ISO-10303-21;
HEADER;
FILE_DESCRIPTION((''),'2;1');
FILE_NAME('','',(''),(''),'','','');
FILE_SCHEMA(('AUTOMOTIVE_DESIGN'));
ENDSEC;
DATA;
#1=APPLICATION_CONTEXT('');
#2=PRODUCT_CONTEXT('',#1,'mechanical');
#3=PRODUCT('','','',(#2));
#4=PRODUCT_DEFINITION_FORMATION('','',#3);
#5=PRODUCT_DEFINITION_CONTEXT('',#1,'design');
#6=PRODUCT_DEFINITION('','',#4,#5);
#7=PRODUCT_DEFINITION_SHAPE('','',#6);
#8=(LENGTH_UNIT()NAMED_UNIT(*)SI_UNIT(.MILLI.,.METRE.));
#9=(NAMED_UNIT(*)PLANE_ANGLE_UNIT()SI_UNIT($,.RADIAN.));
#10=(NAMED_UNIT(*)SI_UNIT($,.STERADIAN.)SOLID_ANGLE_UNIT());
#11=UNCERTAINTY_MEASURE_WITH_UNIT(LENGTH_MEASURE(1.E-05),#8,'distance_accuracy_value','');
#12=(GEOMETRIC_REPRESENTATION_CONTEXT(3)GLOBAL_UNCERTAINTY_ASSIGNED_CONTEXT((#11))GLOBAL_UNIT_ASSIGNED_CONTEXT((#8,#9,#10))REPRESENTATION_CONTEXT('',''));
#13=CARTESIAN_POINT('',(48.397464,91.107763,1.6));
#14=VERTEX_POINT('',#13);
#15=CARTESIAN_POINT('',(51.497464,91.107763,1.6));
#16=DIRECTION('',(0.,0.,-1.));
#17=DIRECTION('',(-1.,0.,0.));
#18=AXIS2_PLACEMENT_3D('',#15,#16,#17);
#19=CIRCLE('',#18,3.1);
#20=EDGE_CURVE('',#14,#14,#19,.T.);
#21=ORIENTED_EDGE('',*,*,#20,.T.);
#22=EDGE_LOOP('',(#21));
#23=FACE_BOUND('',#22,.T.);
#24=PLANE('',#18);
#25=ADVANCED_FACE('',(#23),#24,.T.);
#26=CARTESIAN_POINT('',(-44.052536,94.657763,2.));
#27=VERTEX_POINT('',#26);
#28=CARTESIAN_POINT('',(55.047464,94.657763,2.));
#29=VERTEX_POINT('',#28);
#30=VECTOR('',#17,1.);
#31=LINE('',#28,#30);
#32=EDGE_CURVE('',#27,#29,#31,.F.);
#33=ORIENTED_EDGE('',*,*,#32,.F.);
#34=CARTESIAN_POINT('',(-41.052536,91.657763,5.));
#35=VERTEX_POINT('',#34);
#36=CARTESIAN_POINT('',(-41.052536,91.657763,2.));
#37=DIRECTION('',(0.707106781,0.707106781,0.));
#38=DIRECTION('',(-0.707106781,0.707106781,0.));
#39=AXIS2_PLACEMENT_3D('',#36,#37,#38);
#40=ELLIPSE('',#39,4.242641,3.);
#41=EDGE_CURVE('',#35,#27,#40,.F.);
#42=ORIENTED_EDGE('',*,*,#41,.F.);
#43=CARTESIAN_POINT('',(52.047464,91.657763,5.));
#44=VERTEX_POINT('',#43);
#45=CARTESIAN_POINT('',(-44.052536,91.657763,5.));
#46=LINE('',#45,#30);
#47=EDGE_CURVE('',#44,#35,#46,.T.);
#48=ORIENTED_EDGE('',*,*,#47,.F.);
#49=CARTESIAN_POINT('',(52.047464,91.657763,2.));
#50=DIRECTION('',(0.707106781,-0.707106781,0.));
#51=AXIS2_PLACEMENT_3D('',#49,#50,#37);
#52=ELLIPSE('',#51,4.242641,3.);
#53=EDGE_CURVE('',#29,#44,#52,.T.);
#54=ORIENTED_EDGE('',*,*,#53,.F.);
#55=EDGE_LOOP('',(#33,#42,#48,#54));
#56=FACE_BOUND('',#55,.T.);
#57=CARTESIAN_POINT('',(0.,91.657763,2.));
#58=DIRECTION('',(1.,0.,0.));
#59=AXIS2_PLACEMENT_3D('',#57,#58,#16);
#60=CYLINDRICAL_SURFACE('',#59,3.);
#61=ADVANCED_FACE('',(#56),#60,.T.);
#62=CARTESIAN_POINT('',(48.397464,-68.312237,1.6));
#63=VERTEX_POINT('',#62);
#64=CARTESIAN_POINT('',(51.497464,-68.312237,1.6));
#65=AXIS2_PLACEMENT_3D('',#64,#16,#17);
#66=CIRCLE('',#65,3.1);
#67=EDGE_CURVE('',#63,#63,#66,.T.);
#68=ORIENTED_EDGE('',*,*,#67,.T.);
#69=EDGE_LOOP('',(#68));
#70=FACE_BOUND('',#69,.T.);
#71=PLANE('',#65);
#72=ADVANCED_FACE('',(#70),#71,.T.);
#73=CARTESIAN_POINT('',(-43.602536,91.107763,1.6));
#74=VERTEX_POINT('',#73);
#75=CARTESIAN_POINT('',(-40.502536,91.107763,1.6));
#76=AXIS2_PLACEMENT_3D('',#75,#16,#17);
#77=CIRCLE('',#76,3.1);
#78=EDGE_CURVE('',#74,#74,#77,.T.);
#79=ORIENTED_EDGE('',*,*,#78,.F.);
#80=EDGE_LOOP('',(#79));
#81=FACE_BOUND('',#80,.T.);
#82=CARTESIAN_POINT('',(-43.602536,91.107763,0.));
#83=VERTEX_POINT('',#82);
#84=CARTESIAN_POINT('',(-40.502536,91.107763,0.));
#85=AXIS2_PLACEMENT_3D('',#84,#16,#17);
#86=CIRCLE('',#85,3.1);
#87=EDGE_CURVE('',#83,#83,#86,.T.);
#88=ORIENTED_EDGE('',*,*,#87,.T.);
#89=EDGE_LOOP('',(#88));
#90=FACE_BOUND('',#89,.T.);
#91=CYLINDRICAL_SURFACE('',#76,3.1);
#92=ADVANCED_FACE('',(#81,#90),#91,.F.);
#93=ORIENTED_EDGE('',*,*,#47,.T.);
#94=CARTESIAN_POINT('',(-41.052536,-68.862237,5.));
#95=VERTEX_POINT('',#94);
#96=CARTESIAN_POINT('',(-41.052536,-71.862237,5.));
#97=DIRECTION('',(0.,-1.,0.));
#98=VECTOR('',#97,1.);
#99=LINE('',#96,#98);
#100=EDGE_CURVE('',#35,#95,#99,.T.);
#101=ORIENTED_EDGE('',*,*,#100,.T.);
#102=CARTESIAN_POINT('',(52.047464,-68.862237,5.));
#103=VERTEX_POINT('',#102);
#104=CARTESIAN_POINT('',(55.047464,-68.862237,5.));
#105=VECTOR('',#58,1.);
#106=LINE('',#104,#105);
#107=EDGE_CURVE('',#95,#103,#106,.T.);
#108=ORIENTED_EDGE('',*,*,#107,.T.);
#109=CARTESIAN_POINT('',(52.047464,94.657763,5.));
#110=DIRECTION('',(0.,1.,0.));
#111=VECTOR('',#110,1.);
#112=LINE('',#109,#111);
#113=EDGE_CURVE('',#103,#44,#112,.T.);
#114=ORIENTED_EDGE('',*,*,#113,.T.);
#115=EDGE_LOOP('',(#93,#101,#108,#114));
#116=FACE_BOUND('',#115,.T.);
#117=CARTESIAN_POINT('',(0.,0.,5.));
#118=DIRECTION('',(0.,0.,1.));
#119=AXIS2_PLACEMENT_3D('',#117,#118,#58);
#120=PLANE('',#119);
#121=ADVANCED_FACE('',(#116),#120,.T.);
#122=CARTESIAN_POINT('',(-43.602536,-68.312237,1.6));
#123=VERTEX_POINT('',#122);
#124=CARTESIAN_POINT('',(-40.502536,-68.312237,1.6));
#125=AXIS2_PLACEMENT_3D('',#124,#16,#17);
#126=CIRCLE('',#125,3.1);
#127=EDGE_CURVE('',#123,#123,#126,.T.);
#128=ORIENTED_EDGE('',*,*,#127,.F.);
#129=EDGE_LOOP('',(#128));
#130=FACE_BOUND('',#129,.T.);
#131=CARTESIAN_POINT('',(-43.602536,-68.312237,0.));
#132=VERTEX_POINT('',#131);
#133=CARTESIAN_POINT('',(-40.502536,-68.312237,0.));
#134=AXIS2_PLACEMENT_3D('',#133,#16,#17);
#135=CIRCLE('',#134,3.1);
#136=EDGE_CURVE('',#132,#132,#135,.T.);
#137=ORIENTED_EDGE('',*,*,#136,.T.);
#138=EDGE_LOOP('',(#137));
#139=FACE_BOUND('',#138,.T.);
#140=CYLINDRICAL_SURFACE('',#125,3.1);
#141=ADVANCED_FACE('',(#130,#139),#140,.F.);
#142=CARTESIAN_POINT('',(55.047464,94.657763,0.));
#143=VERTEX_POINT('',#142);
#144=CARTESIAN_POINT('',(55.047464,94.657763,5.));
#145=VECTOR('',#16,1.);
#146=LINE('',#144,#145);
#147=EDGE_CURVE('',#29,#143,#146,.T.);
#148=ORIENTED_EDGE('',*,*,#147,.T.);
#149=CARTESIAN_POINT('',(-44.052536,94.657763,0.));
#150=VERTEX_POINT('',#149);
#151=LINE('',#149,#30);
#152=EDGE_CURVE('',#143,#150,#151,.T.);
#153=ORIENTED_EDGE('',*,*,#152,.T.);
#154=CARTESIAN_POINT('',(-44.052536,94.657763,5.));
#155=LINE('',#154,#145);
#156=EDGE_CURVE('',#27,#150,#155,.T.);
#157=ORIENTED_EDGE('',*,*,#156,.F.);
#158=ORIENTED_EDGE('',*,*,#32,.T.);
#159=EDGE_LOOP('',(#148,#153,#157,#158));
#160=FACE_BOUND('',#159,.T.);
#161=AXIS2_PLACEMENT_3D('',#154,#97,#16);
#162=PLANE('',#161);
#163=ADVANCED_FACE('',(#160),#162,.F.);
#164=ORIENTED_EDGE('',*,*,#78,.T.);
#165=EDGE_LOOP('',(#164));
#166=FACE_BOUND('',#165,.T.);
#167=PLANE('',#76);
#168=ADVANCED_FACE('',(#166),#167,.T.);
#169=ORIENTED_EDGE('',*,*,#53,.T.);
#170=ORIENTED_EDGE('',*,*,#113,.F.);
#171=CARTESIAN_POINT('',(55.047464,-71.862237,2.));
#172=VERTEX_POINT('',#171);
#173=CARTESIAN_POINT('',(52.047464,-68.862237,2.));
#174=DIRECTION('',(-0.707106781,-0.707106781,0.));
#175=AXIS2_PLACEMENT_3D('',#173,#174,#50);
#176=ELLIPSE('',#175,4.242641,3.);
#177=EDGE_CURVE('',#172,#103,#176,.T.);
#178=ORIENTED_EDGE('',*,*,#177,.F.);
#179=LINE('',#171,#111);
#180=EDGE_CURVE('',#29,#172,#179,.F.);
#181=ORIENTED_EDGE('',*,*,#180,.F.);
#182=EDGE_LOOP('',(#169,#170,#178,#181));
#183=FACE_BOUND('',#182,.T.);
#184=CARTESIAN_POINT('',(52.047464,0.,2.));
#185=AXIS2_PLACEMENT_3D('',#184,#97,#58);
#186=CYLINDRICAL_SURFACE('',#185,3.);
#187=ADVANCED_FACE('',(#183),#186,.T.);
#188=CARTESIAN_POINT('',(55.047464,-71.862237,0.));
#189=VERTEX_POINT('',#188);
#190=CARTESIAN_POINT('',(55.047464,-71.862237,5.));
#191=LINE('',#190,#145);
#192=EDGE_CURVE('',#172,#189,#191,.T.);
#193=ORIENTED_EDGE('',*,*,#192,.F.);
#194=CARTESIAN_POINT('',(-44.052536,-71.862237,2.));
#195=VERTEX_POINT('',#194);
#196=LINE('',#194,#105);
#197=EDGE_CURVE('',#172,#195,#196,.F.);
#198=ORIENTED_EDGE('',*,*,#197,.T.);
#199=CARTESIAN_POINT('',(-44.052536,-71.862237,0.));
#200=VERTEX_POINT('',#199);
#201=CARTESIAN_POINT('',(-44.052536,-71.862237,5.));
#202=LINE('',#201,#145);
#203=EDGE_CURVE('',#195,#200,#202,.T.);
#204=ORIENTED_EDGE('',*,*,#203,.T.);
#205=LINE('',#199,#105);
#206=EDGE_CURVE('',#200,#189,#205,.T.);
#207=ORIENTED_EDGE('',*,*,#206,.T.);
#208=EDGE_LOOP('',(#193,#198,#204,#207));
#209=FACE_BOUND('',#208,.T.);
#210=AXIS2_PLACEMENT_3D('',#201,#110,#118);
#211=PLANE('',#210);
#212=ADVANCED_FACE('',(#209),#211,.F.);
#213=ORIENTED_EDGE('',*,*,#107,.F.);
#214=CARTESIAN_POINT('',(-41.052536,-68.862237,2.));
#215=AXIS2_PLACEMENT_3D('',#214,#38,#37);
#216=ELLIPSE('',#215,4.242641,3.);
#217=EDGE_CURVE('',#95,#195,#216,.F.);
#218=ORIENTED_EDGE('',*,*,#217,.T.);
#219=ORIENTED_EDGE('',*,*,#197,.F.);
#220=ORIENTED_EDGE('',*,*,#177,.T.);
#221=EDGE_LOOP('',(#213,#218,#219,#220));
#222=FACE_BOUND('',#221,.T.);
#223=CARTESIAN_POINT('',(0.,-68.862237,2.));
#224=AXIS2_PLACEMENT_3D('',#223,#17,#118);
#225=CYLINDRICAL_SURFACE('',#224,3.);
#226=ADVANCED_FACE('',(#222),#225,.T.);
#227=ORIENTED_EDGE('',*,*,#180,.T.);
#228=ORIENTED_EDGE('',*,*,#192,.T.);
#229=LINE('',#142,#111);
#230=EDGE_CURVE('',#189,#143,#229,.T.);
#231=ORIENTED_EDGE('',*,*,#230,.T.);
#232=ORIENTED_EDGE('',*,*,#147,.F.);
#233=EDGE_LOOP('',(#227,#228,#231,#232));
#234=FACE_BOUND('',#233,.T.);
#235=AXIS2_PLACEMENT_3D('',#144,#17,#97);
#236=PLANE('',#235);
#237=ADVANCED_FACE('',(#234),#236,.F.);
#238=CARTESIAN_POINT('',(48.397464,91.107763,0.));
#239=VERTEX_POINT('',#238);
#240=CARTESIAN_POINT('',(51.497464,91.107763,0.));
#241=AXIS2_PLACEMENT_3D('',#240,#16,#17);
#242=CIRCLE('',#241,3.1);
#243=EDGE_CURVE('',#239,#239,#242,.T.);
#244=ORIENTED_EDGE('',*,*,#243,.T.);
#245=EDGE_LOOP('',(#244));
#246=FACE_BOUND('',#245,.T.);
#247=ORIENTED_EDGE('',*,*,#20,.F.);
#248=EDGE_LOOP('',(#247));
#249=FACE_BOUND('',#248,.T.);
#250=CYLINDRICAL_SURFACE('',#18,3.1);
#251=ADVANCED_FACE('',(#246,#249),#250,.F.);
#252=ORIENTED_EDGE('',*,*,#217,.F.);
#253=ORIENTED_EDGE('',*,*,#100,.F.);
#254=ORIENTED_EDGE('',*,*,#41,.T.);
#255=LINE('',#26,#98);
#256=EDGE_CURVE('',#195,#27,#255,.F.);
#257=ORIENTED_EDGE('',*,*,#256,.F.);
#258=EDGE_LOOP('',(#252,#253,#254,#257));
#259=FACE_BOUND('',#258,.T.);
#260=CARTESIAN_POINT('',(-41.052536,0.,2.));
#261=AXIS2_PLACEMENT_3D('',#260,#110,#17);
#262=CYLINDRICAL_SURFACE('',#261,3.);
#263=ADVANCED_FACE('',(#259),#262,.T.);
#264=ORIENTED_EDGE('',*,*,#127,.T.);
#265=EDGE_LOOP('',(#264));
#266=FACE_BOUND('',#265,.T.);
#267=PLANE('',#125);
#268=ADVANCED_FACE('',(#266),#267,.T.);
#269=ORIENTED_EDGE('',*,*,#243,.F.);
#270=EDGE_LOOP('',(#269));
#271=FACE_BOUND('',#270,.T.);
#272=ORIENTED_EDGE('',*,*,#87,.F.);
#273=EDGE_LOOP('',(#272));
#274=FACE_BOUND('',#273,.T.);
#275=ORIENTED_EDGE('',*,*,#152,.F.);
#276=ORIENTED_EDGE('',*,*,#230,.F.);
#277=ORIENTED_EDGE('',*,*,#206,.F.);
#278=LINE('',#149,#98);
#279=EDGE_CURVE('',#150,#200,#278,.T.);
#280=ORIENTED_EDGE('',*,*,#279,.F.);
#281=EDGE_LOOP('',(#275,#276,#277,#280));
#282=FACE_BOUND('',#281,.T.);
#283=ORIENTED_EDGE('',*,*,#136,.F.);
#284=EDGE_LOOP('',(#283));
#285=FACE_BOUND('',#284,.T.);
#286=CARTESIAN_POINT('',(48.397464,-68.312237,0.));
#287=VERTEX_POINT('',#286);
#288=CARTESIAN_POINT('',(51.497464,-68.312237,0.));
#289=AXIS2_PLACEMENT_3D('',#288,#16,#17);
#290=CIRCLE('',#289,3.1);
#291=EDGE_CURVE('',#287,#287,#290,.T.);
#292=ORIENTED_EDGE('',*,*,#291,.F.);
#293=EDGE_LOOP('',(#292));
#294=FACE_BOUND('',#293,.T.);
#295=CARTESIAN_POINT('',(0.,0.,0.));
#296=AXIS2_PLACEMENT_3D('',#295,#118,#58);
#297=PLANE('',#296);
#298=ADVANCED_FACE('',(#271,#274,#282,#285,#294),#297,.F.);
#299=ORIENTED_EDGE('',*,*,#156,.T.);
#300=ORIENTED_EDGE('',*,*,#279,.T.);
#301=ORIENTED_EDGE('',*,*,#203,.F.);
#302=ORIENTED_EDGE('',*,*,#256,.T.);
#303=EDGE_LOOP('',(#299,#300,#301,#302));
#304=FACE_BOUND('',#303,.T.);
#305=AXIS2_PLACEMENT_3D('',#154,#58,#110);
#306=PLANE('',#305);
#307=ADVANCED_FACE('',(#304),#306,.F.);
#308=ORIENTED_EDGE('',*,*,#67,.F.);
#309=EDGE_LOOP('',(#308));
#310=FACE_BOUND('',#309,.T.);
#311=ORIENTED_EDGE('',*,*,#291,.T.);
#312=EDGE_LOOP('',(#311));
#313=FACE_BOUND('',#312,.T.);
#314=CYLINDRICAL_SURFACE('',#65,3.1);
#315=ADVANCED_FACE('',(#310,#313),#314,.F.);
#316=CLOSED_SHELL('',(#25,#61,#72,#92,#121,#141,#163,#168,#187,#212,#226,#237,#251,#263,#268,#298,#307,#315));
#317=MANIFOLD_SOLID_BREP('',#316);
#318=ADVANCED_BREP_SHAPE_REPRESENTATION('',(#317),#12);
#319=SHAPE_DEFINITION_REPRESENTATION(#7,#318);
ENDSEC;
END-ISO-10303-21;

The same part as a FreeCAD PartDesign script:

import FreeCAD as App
import Part
import Sketcher

V = App.Vector
Q = App.Units.Quantity


def edges_at(feature, points):
    """Names of the edges that pass closest to the given points."""
    edges = feature.Shape.Edges
    near = lambda p: min(range(len(edges)), key=lambda i: edges[i].distToShape(Part.Vertex(*p))[0])
    return sorted({f"Edge{near(p) + 1}" for p in points})

doc = App.newDocument("Part")
body = doc.addObject("PartDesign::Body", "Body")

# Sketch on XY plane
sketch1 = body.newObject("Sketcher::SketchObject", "Sketch")
sketch1.AttachmentSupport = (doc.getObject("XY_Plane"), [""])
sketch1.MapMode = "FlatFace"
sketch1.addGeometry([
    Part.LineSegment(V(-44.052536, 94.657763, 0), V(-44.052536, -71.862237, 0)),
    Part.LineSegment(V(-44.052536, -71.862237, 0), V(55.047464, -71.862237, 0)),
    Part.LineSegment(V(55.047464, -71.862237, 0), V(55.047464, 94.657763, 0)),
    Part.LineSegment(V(55.047464, 94.657763, 0), V(-44.052536, 94.657763, 0)),
], False)
sketch1.addConstraint([
    Sketcher.Constraint("Coincident", 0, 2, 1, 1),
    Sketcher.Constraint("Coincident", 1, 2, 2, 1),
    Sketcher.Constraint("Coincident", 2, 2, 3, 1),
    Sketcher.Constraint("Coincident", 3, 2, 0, 1),
    Sketcher.Constraint("Vertical", 0),
    Sketcher.Constraint("Horizontal", 1),
    Sketcher.Constraint("Vertical", 2),
    Sketcher.Constraint("Horizontal", 3),
    Sketcher.Constraint("DistanceX", 1, 1, 1, 2, Q("99.1 mm")),
    Sketcher.Constraint("DistanceY", 0, 2, 0, 1, Q("166.52 mm")),
    Sketcher.Constraint("DistanceX", 0, 2, -1, 1, Q("44.052536 mm")),
    Sketcher.Constraint("DistanceY", 0, 2, -1, 1, Q("71.862237 mm")),
])
pad1 = body.newObject("PartDesign::Pad", "Pad")
pad1.Profile = sketch1
pad1.Length = 5
doc.recompute()

fillet = body.newObject("PartDesign::Fillet", "Fillet")
fillet.Base = (pad1, edges_at(pad1, [
    (55.047, 11.398, 5),
    (5.497, 94.658, 5),
    (-44.053, 11.398, 5),
    (5.497, -71.862, 5),
]))
fillet.Radius = 3

# Sketch on XY plane
sketch2 = body.newObject("Sketcher::SketchObject", "Sketch001")
sketch2.AttachmentSupport = (doc.getObject("XY_Plane"), [""])
sketch2.MapMode = "FlatFace"
sketch2.addGeometry(Part.Circle(V(51.497464, 91.107763, 0), V(0, 0, 1), 3.1), False)
sketch2.addConstraint([
    Sketcher.Constraint("Diameter", 0, Q("6.2 mm")),
    Sketcher.Constraint("DistanceX", -1, 1, 0, 3, Q("51.497464 mm")),
    Sketcher.Constraint("DistanceY", -1, 1, 0, 3, Q("91.107763 mm")),
])
pocket1 = body.newObject("PartDesign::Pocket", "Pocket")
pocket1.Profile = sketch2
pocket1.Length = 1.6
pocket1.Reversed = True

# Sketch on XY plane
sketch3 = body.newObject("Sketcher::SketchObject", "Sketch002")
sketch3.AttachmentSupport = (doc.getObject("XY_Plane"), [""])
sketch3.MapMode = "FlatFace"
sketch3.addGeometry(Part.Circle(V(-40.502536, 91.107763, 0), V(0, 0, 1), 3.1), False)
sketch3.addConstraint([
    Sketcher.Constraint("Diameter", 0, Q("6.2 mm")),
    Sketcher.Constraint("DistanceX", 0, 3, -1, 1, Q("40.502536 mm")),
    Sketcher.Constraint("DistanceY", -1, 1, 0, 3, Q("91.107763 mm")),
])
pocket2 = body.newObject("PartDesign::Pocket", "Pocket001")
pocket2.Profile = sketch3
pocket2.Length = 1.6
pocket2.Reversed = True

# Sketch on XY plane
sketch4 = body.newObject("Sketcher::SketchObject", "Sketch003")
sketch4.AttachmentSupport = (doc.getObject("XY_Plane"), [""])
sketch4.MapMode = "FlatFace"
sketch4.addGeometry(Part.Circle(V(51.497464, -68.312237, 0), V(0, 0, 1), 3.1), False)
sketch4.addConstraint([
    Sketcher.Constraint("Diameter", 0, Q("6.2 mm")),
    Sketcher.Constraint("DistanceX", -1, 1, 0, 3, Q("51.497464 mm")),
    Sketcher.Constraint("DistanceY", 0, 3, -1, 1, Q("68.312237 mm")),
])
pocket3 = body.newObject("PartDesign::Pocket", "Pocket002")
pocket3.Profile = sketch4
pocket3.Length = 1.6
pocket3.Reversed = True

# Sketch on XY plane
sketch5 = body.newObject("Sketcher::SketchObject", "Sketch004")
sketch5.AttachmentSupport = (doc.getObject("XY_Plane"), [""])
sketch5.MapMode = "FlatFace"
sketch5.addGeometry(Part.Circle(V(-40.502536, -68.312237, 0), V(0, 0, 1), 3.1), False)
sketch5.addConstraint([
    Sketcher.Constraint("Diameter", 0, Q("6.2 mm")),
    Sketcher.Constraint("DistanceX", 0, 3, -1, 1, Q("40.502536 mm")),
    Sketcher.Constraint("DistanceY", 0, 3, -1, 1, Q("68.312237 mm")),
])
pocket4 = body.newObject("PartDesign::Pocket", "Pocket003")
pocket4.Profile = sketch5
pocket4.Length = 1.6
pocket4.Reversed = True

doc.recompute()
